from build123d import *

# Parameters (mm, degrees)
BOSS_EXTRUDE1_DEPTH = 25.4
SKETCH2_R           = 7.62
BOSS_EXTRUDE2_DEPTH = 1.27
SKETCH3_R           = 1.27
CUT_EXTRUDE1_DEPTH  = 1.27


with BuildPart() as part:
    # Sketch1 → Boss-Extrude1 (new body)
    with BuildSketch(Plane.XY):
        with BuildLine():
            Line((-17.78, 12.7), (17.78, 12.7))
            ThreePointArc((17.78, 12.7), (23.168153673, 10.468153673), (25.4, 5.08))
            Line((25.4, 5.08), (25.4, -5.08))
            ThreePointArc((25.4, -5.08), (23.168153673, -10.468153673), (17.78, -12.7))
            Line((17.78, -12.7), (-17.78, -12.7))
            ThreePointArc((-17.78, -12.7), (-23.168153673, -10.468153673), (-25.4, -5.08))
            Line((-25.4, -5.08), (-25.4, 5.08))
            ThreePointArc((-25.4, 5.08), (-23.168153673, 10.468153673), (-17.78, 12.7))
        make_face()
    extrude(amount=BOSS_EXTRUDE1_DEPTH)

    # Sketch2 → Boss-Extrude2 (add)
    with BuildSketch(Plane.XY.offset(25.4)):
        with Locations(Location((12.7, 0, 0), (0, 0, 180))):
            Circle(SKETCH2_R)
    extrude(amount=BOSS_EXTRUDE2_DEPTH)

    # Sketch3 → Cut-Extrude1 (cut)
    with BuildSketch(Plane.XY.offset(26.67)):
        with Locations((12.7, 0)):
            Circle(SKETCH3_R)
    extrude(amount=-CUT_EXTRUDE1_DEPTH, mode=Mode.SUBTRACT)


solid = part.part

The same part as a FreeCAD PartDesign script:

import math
import FreeCAD as App
import Part
import Sketcher
Q = App.Units.Quantity

doc = App.newDocument("Part")
body = doc.addObject("PartDesign::Body", "Body")

# Sketch on XY plane
sketch1 = body.newObject("Sketcher::SketchObject", "Sketch")
sketch1.AttachmentSupport = (doc.getObject("XY_Plane"), [""])
sketch1.MapMode = "FlatFace"
sketch1.addGeometry([
    Part.LineSegment(App.Vector(18, 13, 0), App.Vector(-18, 13, 0)),  # 0
    Part.ArcOfCircle(Part.Circle(App.Vector(-18, 5, 0), App.Vector(0, 0, 1), 8), math.radians(90), math.radians(180)),  # 1
    Part.LineSegment(App.Vector(-25, 5, 0), App.Vector(-25, -5, 0)),  # 2
    Part.ArcOfCircle(Part.Circle(App.Vector(-18, -5, 0), App.Vector(0, 0, 1), 8), math.radians(180), math.radians(270)),  # 3
    Part.LineSegment(App.Vector(-18, -13, 0), App.Vector(18, -13, 0)),  # 4
    Part.ArcOfCircle(Part.Circle(App.Vector(18, -5, 0), App.Vector(0, 0, 1), 8), math.radians(-90), math.radians(0)),  # 5
    Part.LineSegment(App.Vector(25, -5, 0), App.Vector(25, 5, 0)),  # 6
    Part.ArcOfCircle(Part.Circle(App.Vector(18, 5, 0), App.Vector(0, 0, 1), 8), math.radians(0), math.radians(90)),  # 7
], False)
sketch1.addConstraint([
    Sketcher.Constraint("Tangent", 0, 2, 1, 1),
    Sketcher.Constraint("Tangent", 1, 2, 2, 1),
    Sketcher.Constraint("Tangent", 2, 2, 3, 1),
    Sketcher.Constraint("Tangent", 3, 2, 4, 1),
    Sketcher.Constraint("Tangent", 4, 2, 5, 1),
    Sketcher.Constraint("Tangent", 5, 2, 6, 1),
    Sketcher.Constraint("Tangent", 6, 2, 7, 1),
    Sketcher.Constraint("Tangent", 7, 2, 0, 1),
    Sketcher.Constraint("Horizontal", 0),
    Sketcher.Constraint("Vertical", 2),
    Sketcher.Constraint("Horizontal", 4),
    Sketcher.Constraint("Vertical", 6),
    Sketcher.Constraint("Equal", 1, 3),
    Sketcher.Constraint("Equal", 3, 5),
    Sketcher.Constraint("Equal", 5, 7),
    Sketcher.Constraint("Symmetric", 1, 3, 5, 3, -1, 1),
    Sketcher.Constraint("Radius", 1, Q("0.3 in")),
    Sketcher.Constraint("DistanceX", 0, 2, 0, 1, Q("1.4 in")),
    Sketcher.Constraint("DistanceY", 2, 2, 2, 1, Q("0.4 in")),
])
pad1 = body.newObject("PartDesign::Pad", "Pad")
pad1.Profile = sketch1
pad1.Length = Q("1 in")

# Sketch on XY plane
sketch2 = body.newObject("Sketcher::SketchObject", "Sketch001")
sketch2.AttachmentSupport = (doc.getObject("XY_Plane"), [""])
sketch2.MapMode = "FlatFace"
sketch2.AttachmentOffset = App.Placement(App.Vector(0, 0, 1 * 25.4), App.Rotation())
sketch2.addGeometry(Part.Circle(App.Vector(13, 0, 0), App.Vector(0, 0, 1), 8), False)
sketch2.addConstraint([
    Sketcher.Constraint("PointOnObject", 0, 3, -1),
    Sketcher.Constraint("Diameter", 0, Q("0.6 in")),
    Sketcher.Constraint("DistanceX", -1, 1, 0, 3, Q("0.5 in")),
])
pad2 = body.newObject("PartDesign::Pad", "Pad001")
pad2.Profile = sketch2
pad2.Length = Q("0.05 in")

# Sketch on XY plane
sketch3 = body.newObject("Sketcher::SketchObject", "Sketch002")
sketch3.AttachmentSupport = (doc.getObject("XY_Plane"), [""])
sketch3.MapMode = "FlatFace"
sketch3.AttachmentOffset = App.Placement(App.Vector(0, 0, 1.05 * 25.4), App.Rotation())
sketch3.addGeometry(Part.Circle(App.Vector(12.7, 0, 0), App.Vector(0, 0, 1), 1.3), False)
sketch3.addConstraint([
    Sketcher.Constraint("PointOnObject", 0, 3, -1),
    Sketcher.Constraint("Diameter", 0, Q("0.1 in")),
    Sketcher.Constraint("DistanceX", -1, 1, 0, 3, Q("0.5 in")),
])
pocket1 = body.newObject("PartDesign::Pocket", "Pocket")
pocket1.Profile = sketch3
pocket1.Length = Q("0.05 in")

doc.recompute()
